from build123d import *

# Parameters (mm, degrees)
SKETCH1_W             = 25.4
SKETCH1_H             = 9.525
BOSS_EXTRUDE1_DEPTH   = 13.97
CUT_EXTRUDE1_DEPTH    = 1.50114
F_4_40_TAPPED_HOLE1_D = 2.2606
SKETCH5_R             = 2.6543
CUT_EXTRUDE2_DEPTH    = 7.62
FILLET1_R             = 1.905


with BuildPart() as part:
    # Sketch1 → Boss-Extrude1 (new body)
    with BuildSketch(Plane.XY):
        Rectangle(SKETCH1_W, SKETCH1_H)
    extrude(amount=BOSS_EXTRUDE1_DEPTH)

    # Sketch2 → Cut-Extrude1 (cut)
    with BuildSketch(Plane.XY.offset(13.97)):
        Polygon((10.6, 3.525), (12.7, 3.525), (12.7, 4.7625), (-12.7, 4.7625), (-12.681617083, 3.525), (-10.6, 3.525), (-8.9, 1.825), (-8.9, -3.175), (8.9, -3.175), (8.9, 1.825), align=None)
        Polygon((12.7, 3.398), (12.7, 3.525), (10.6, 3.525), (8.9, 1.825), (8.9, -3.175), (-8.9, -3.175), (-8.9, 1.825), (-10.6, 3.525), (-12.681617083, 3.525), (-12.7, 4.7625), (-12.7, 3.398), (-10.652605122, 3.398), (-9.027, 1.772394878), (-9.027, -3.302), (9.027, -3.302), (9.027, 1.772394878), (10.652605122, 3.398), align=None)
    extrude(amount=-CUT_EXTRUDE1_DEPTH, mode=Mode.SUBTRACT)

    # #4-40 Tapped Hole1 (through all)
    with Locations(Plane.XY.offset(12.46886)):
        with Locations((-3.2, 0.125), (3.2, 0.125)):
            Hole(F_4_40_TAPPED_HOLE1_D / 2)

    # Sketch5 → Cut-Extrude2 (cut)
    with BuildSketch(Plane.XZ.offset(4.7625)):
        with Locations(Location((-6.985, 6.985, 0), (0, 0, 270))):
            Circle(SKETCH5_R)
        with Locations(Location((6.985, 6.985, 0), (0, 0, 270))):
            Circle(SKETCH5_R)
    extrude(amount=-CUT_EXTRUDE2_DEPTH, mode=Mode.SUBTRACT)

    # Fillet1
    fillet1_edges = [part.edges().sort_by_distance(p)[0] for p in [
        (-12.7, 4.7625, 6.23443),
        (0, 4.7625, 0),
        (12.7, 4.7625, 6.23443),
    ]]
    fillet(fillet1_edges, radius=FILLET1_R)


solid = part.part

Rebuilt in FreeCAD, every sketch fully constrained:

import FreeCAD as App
import Part
import Sketcher

V = App.Vector
Q = App.Units.Quantity


def edges_at(feature, points):
    """Names of the edges that pass closest to the given points."""
    edges = feature.Shape.Edges
    near = lambda p: min(range(len(edges)), key=lambda i: edges[i].distToShape(Part.Vertex(*p))[0])
    return sorted({f"Edge{near(p) + 1}" for p in points})

doc = App.newDocument("Part")
body = doc.addObject("PartDesign::Body", "Body")

# Sketch on XY plane
sketch1 = doc.addObject("Sketcher::SketchObject", "Sketch")
body.addObject(sketch1)
sketch1.AttachmentSupport = (doc.XY_Plane, [""])
sketch1.MapMode = "FlatFace"
sketch1.addGeometry([
    Part.LineSegment(V(-13, 5, 0), V(-13, -5, 0)),
    Part.LineSegment(V(-13, -5, 0), V(13, -5, 0)),
    Part.LineSegment(V(13, -5, 0), V(13, 5, 0)),
    Part.LineSegment(V(13, 5, 0), V(-13, 5, 0)),
], False)
sketch1.addConstraint([
    Sketcher.Constraint("Coincident", 0, 2, 1, 1),
    Sketcher.Constraint("Coincident", 1, 2, 2, 1),
    Sketcher.Constraint("Coincident", 2, 2, 3, 1),
    Sketcher.Constraint("Coincident", 3, 2, 0, 1),
    Sketcher.Constraint("Vertical", 0),
    Sketcher.Constraint("Horizontal", 1),
    Sketcher.Constraint("Vertical", 2),
    Sketcher.Constraint("Horizontal", 3),
    Sketcher.Constraint("Symmetric", 0, 2, 2, 2, -1, 1),
    Sketcher.Constraint("DistanceX", 1, 1, 1, 2, Q("1 in")),
    Sketcher.Constraint("DistanceY", 0, 2, 0, 1, Q("0.375 in")),
])
pad1 = doc.addObject("PartDesign::Pad", "Pad")
body.addObject(pad1)
pad1.Profile = sketch1
pad1.Length = Q("0.55 in")

# Sketch on XY plane
sketch2 = doc.addObject("Sketcher::SketchObject", "Sketch001")
body.addObject(sketch2)
sketch2.AttachmentSupport = (doc.XY_Plane, [""])
sketch2.MapMode = "FlatFace"
sketch2.AttachmentOffset = App.Placement(V(0, 0, 0.55 * 25.4), App.Rotation())
sketch2.addGeometry([
    Part.LineSegment(V(12.7, 4.8, 0), V(-12.7, 4.8, 0)),  # 0
    Part.LineSegment(V(-12.7, 4.8, 0), V(-12.7, 3.4, 0)),  # 1
    Part.LineSegment(V(-12.7, 3.4, 0), V(-10.7, 3.4, 0)),  # 2
    Part.LineSegment(V(-10.7, 3.4, 0), V(-9, 1.8, 0)),  # 3
    Part.LineSegment(V(-9, 1.8, 0), V(-9, -3.3, 0)),  # 4
    Part.LineSegment(V(-9, -3.3, 0), V(9, -3.3, 0)),  # 5
    Part.LineSegment(V(9, -3.3, 0), V(9, 1.8, 0)),  # 6
    Part.LineSegment(V(9, 1.8, 0), V(10.7, 3.4, 0)),  # 7
    Part.LineSegment(V(10.7, 3.4, 0), V(12.7, 3.4, 0)),  # 8
    Part.LineSegment(V(12.7, 3.4, 0), V(12.7, 4.8, 0)),  # 9
], False)
sketch2.addConstraint([
    Sketcher.Constraint("Coincident", 0, 2, 1, 1),
    Sketcher.Constraint("Coincident", 1, 2, 2, 1),
    Sketcher.Constraint("Coincident", 2, 2, 3, 1),
    Sketcher.Constraint("Coincident", 3, 2, 4, 1),
    Sketcher.Constraint("Coincident", 4, 2, 5, 1),
    Sketcher.Constraint("Coincident", 5, 2, 6, 1),
    Sketcher.Constraint("Coincident", 6, 2, 7, 1),
    Sketcher.Constraint("Coincident", 7, 2, 8, 1),
    Sketcher.Constraint("Coincident", 8, 2, 9, 1),
    Sketcher.Constraint("Coincident", 9, 2, 0, 1),
    Sketcher.Constraint("Horizontal", 0),
    Sketcher.Constraint("Vertical", 1),
    Sketcher.Constraint("Horizontal", 2),
    Sketcher.Constraint("Vertical", 4),
    Sketcher.Constraint("Horizontal", 5),
    Sketcher.Constraint("Vertical", 6),
    Sketcher.Constraint("Horizontal", 8),
    Sketcher.Constraint("Vertical", 9),
    Sketcher.Constraint("Symmetric", 3, 2, 6, 2, -2),
    Sketcher.Constraint("Symmetric", 2, 2, 7, 2, -2),
    Sketcher.Constraint("Perpendicular", 3, 7),
    Sketcher.Constraint("Equal", 2, 8),
    Sketcher.Constraint("DistanceX", 0, 2, 0, 1, Q("1 in")),
    Sketcher.Constraint("DistanceY", 4, 2, -1, 1, Q("0.13 in")),
    Sketcher.Constraint("DistanceY", -1, 1, 0, 2, Q("0.1875 in")),
    Sketcher.Constraint("DistanceX", 5, 1, 5, 2, Q("18.054 mm")),
    Sketcher.Constraint("DistanceY", 1, 2, 1, 1, Q("1.3645 mm")),
    Sketcher.Constraint("DistanceX", 2, 1, 2, 2, Q("2.047395 mm")),
])
pocket1 = doc.addObject("PartDesign::Pocket", "Pocket")
body.addObject(pocket1)
pocket1.Profile = sketch2
pocket1.Length = Q("0.0591 in")

# Sketch on XY plane
sketch3 = doc.addObject("Sketcher::SketchObject", "Sketch002")
body.addObject(sketch3)
sketch3.AttachmentSupport = (doc.XY_Plane, [""])
sketch3.MapMode = "FlatFace"
sketch3.AttachmentOffset = App.Placement(V(0, 0, 0.4909 * 25.4), App.Rotation())
sketch3.addGeometry([
    Part.Circle(V(-3.2, 0.1, 0), V(0, 0, 1), 1.1),
    Part.Circle(V(3.2, 0.1, 0), V(0, 0, 1), 1.1),
], False)
sketch3.addConstraint([
    Sketcher.Constraint("Equal", 0, 1),
    Sketcher.Constraint("Symmetric", 0, 3, 1, 3, -2),
    Sketcher.Constraint("Diameter", 0, Q("0.089 in")),
    Sketcher.Constraint("DistanceX", 0, 3, -1, 1, Q("3.2 mm")),
    Sketcher.Constraint("DistanceY", -1, 1, 0, 3, Q("0.125 mm")),
])
doc.recompute()
hole = doc.addObject("PartDesign::Hole", "Hole")
body.addObject(hole)
hole.Profile = sketch3
hole.ThreadType = "None"
hole.Diameter = Q("0.089 in")
hole.DepthType = "ThroughAll"

# Sketch on XZ plane
sketch4 = doc.addObject("Sketcher::SketchObject", "Sketch003")
body.addObject(sketch4)
sketch4.AttachmentSupport = (doc.XZ_Plane, [""])
sketch4.MapMode = "FlatFace"
sketch4.AttachmentOffset = App.Placement(V(0, 0, 0.1875 * 25.4), App.Rotation())
sketch4.addGeometry([
    Part.Circle(V(-7, 7, 0), V(0, 0, 1), 2.7),
    Part.Circle(V(7, 7, 0), V(0, 0, 1), 2.7),
], False)
sketch4.addConstraint([
    Sketcher.Constraint("Equal", 0, 1),
    Sketcher.Constraint("Symmetric", 0, 3, 1, 3, -2),
    Sketcher.Constraint("Diameter", 0, Q("0.209 in")),
    Sketcher.Constraint("DistanceX", 0, 3, 1, 3, Q("0.55 in")),
    Sketcher.Constraint("DistanceY", -1, 1, 0, 3, Q("0.275 in")),
])
pocket2 = doc.addObject("PartDesign::Pocket", "Pocket001")
body.addObject(pocket2)
pocket2.Profile = sketch4
pocket2.Length = Q("0.3 in")
doc.recompute()

fillet = doc.addObject("PartDesign::Fillet", "Fillet")
body.addObject(fillet)
fillet.Base = (pocket2, edges_at(pocket2, [(-12.7, 4.763, 6.234), (0, 4.763, 0), (12.7, 4.763, 6.234)]))
fillet.Radius = Q("0.075 in")

doc.recompute()
